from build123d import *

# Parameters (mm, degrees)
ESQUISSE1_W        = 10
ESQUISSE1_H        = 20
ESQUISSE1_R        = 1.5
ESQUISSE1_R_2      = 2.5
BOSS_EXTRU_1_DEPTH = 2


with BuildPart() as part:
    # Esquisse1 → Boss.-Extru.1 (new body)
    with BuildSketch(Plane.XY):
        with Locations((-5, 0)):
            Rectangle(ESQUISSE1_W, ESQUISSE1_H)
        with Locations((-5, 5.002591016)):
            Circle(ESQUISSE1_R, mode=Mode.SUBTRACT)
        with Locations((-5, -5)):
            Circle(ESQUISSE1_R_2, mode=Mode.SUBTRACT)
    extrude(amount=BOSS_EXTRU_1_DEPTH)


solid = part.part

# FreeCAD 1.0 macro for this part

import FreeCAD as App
import Part
import Sketcher

V = App.Vector


def add_polygon(sketch, points):
    """Adds a closed chain of lines whose ends are joined by coincident constraints."""
    first, n = sketch.GeometryCount, len(points)
    for a, b in zip(points, points[1:] + points[:1]):
        sketch.addGeometry(Part.LineSegment(App.Vector(*a, 0), App.Vector(*b, 0)), False)
    for i in range(n):
        sketch.addConstraint(Sketcher.Constraint("Coincident", first + i, 2, first + (i + 1) % n, 1))

doc = App.newDocument("Part")
params = doc.addObject("Spreadsheet::Sheet", "Params")
for row, (alias, value) in enumerate([
    ("sketch1_diameter", "5 mm"),
    ("sketch1_diameter2", "3 mm"),
    ("sketch1_width", "10 mm"),
    ("sketch1_height", "20 mm"),
    ("pad1_length", "2 mm"),
], start=1):
    params.set(f"A{row}", alias)
    params.set(f"B{row}", "=" + value)
    params.setAlias(f"B{row}", alias)

body = doc.addObject("PartDesign::Body", "Body")

# Sketch on XY plane
sketch1 = body.newObject("Sketcher::SketchObject", "Sketch")
sketch1.AttachmentSupport = (doc.getObject("XY_Plane"), [""])
sketch1.MapMode = "FlatFace"
add_polygon(sketch1, [(-10, 10), (-10, -10), (0, -10), (0, 10)])  # lines 0-3
sketch1.addGeometry(Part.Circle(V(-5, -5, 0), V(0, 0, 1), 2.5), False)  # 4
sketch1.addGeometry(Part.Circle(V(-5, 5, 0), V(0, 0, 1), 1.5), False)  # 5
sketch1.addConstraint([
    Sketcher.Constraint("Vertical", 0),
    Sketcher.Constraint("Horizontal", 1),
    Sketcher.Constraint("Vertical", 2),
    Sketcher.Constraint("Horizontal", 3),
    Sketcher.Constraint("Symmetric", 1, 2, 2, 2, -1, 1),
    Sketcher.Constraint("Vertical", 4, 3, 5, 3),
    Sketcher.Constraint("Diameter", 4, 5.0),
    Sketcher.Constraint("Diameter", 5, 3.0),
    Sketcher.Constraint("DistanceX", 1, 1, 1, 2, 10.0),
    Sketcher.Constraint("DistanceY", 0, 2, 0, 1, 20.0),
    Sketcher.Constraint("DistanceX", 4, 3, -1, 1, 5.0),
    Sketcher.Constraint("DistanceY", 4, 3, -1, 1, 5.0),
    Sketcher.Constraint("DistanceY", -1, 1, 5, 3, 5.002591),
])
sketch1.setExpression("Constraints[10]", "Params.sketch1_diameter")
sketch1.setExpression("Constraints[11]", "Params.sketch1_diameter2")
sketch1.setExpression("Constraints[12]", "Params.sketch1_width")
sketch1.setExpression("Constraints[13]", "Params.sketch1_height")
pad1 = body.newObject("PartDesign::Pad", "Pad")
pad1.Profile = sketch1
pad1.setExpression("Length", "Params.pad1_length")

doc.recompute()
